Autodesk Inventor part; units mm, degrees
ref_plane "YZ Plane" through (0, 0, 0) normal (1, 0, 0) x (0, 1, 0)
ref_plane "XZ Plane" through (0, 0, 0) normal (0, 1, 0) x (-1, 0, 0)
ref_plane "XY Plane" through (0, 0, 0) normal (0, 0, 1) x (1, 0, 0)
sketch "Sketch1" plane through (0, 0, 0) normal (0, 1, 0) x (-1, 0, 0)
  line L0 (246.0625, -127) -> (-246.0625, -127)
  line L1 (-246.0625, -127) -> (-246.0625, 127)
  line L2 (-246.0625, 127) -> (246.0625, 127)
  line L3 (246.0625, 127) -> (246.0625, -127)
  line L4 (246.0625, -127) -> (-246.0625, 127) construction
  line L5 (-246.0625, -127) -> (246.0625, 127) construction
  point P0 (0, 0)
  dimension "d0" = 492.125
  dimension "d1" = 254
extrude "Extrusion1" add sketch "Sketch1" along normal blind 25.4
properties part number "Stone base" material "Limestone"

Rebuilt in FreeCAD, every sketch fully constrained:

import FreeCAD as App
import Part
import Sketcher

V = App.Vector
Q = App.Units.Quantity

doc = App.newDocument("Part")
body = doc.addObject("PartDesign::Body", "Body")

# Sketch on XZ plane
sketch1 = doc.addObject("Sketcher::SketchObject", "Sketch")
body.addObject(sketch1)
sketch1.AttachmentSupport = (doc.XZ_Plane, [""])
sketch1.MapMode = "FlatFace"
sketch1.addGeometry(Part.LineSegment(V(246, -127, 0), V(-246, -127, 0)), False)
sketch1.addGeometry(Part.LineSegment(V(-246, -127, 0), V(-246, 127, 0)), False)
sketch1.addGeometry(Part.LineSegment(V(-246, 127, 0), V(246, 127, 0)), False)
sketch1.addGeometry(Part.LineSegment(V(246, 127, 0), V(246, -127, 0)), False)
sketch1.addConstraint(Sketcher.Constraint("Coincident", 0, 2, 1, 1))
sketch1.addConstraint(Sketcher.Constraint("Coincident", 1, 2, 2, 1))
sketch1.addConstraint(Sketcher.Constraint("Coincident", 2, 2, 3, 1))
sketch1.addConstraint(Sketcher.Constraint("Coincident", 3, 2, 0, 1))
sketch1.addConstraint(Sketcher.Constraint("Horizontal", 0))
sketch1.addConstraint(Sketcher.Constraint("Vertical", 1))
sketch1.addConstraint(Sketcher.Constraint("Horizontal", 2))
sketch1.addConstraint(Sketcher.Constraint("Vertical", 3))
sketch1.addConstraint(Sketcher.Constraint("Symmetric", 0, 2, 2, 2, -1, 1))
sketch1.addConstraint(Sketcher.Constraint("DistanceY", 1, 1, 1, 2, Q("10 in")))
sketch1.addConstraint(Sketcher.Constraint("DistanceX", 0, 2, 0, 1, Q("19.375 in")))
pad1 = doc.addObject("PartDesign::Pad", "Pad")
body.addObject(pad1)
pad1.Profile = sketch1
pad1.Length = Q("1 in")
pad1.Reversed = True

doc.recompute()
